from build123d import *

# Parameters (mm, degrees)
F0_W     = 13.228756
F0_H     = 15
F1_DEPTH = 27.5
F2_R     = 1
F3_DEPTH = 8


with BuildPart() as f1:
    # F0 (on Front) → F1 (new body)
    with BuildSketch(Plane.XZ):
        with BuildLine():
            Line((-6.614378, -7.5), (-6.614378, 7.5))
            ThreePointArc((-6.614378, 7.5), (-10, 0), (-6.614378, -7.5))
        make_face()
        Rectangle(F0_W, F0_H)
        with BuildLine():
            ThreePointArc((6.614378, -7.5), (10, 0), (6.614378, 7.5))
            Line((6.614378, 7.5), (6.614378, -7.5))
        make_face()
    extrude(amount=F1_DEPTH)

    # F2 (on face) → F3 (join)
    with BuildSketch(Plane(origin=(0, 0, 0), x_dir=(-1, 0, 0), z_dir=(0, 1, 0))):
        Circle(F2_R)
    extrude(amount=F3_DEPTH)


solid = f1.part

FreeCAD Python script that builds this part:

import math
import FreeCAD as App
import Part
import Sketcher
Q = App.Units.Quantity

doc = App.newDocument("Part")
body = doc.addObject("PartDesign::Body", "Body")

sketch1 = doc.addObject("Sketcher::SketchObject", "Sketch")
body.addObject(sketch1)
sketch1.AttachmentSupport = (doc.XZ_Plane, [""])
sketch1.MapMode = "FlatFace"
sketch1.addGeometry(Part.ArcOfCircle(Part.Circle(App.Vector(0, 0, 0), App.Vector(0, 0, 1), 10), math.radians(131), math.radians(229)), False)
sketch1.addGeometry(Part.LineSegment(App.Vector(-7, -8, 0), App.Vector(7, -8, 0)), False)
sketch1.addGeometry(Part.ArcOfCircle(Part.Circle(App.Vector(0, 0, 0), App.Vector(0, 0, 1), 10), math.radians(-49), math.radians(49)), False)
sketch1.addGeometry(Part.LineSegment(App.Vector(7, 8, 0), App.Vector(-7, 8, 0)), False)
sketch1.addConstraint(Sketcher.Constraint("Coincident", 0, 2, 1, 1))
sketch1.addConstraint(Sketcher.Constraint("Coincident", 1, 2, 2, 1))
sketch1.addConstraint(Sketcher.Constraint("Coincident", 2, 2, 3, 1))
sketch1.addConstraint(Sketcher.Constraint("Coincident", 3, 2, 0, 1))
sketch1.addConstraint(Sketcher.Constraint("Horizontal", 1))
sketch1.addConstraint(Sketcher.Constraint("Horizontal", 3))
sketch1.addConstraint(Sketcher.Constraint("Coincident", 0, 3, -1, 1))
sketch1.addConstraint(Sketcher.Constraint("Coincident", 2, 3, -1, 1))
sketch1.addConstraint(Sketcher.Constraint("Equal", 0, 2))
sketch1.addConstraint(Sketcher.Constraint("Vertical", 1, 2, 2, 2))
sketch1.addConstraint(Sketcher.Constraint("Radius", 0, Q("9.999999 mm")))
sketch1.addConstraint(Sketcher.Constraint("DistanceY", 1, 2, 2, 2, Q("15 mm")))
pad1 = doc.addObject("PartDesign::Pad", "Pad")
body.addObject(pad1)
pad1.Profile = sketch1
pad1.Length = 27.5

sketch2 = doc.addObject("Sketcher::SketchObject", "Sketch001")
body.addObject(sketch2)
sketch2.AttachmentSupport = (doc.XZ_Plane, [""])
sketch2.MapMode = "FlatFace"
sketch2.addGeometry(Part.Circle(App.Vector(0, 0, 0), App.Vector(0, 0, 1), 1), False)
sketch2.addConstraint(Sketcher.Constraint("Coincident", 0, 3, -1, 1))
sketch2.addConstraint(Sketcher.Constraint("Diameter", 0, Q("2 mm")))
pad2 = doc.addObject("PartDesign::Pad", "Pad001")
body.addObject(pad2)
pad2.Profile = sketch2
pad2.Length = 8
pad2.Reversed = True

doc.recompute()
